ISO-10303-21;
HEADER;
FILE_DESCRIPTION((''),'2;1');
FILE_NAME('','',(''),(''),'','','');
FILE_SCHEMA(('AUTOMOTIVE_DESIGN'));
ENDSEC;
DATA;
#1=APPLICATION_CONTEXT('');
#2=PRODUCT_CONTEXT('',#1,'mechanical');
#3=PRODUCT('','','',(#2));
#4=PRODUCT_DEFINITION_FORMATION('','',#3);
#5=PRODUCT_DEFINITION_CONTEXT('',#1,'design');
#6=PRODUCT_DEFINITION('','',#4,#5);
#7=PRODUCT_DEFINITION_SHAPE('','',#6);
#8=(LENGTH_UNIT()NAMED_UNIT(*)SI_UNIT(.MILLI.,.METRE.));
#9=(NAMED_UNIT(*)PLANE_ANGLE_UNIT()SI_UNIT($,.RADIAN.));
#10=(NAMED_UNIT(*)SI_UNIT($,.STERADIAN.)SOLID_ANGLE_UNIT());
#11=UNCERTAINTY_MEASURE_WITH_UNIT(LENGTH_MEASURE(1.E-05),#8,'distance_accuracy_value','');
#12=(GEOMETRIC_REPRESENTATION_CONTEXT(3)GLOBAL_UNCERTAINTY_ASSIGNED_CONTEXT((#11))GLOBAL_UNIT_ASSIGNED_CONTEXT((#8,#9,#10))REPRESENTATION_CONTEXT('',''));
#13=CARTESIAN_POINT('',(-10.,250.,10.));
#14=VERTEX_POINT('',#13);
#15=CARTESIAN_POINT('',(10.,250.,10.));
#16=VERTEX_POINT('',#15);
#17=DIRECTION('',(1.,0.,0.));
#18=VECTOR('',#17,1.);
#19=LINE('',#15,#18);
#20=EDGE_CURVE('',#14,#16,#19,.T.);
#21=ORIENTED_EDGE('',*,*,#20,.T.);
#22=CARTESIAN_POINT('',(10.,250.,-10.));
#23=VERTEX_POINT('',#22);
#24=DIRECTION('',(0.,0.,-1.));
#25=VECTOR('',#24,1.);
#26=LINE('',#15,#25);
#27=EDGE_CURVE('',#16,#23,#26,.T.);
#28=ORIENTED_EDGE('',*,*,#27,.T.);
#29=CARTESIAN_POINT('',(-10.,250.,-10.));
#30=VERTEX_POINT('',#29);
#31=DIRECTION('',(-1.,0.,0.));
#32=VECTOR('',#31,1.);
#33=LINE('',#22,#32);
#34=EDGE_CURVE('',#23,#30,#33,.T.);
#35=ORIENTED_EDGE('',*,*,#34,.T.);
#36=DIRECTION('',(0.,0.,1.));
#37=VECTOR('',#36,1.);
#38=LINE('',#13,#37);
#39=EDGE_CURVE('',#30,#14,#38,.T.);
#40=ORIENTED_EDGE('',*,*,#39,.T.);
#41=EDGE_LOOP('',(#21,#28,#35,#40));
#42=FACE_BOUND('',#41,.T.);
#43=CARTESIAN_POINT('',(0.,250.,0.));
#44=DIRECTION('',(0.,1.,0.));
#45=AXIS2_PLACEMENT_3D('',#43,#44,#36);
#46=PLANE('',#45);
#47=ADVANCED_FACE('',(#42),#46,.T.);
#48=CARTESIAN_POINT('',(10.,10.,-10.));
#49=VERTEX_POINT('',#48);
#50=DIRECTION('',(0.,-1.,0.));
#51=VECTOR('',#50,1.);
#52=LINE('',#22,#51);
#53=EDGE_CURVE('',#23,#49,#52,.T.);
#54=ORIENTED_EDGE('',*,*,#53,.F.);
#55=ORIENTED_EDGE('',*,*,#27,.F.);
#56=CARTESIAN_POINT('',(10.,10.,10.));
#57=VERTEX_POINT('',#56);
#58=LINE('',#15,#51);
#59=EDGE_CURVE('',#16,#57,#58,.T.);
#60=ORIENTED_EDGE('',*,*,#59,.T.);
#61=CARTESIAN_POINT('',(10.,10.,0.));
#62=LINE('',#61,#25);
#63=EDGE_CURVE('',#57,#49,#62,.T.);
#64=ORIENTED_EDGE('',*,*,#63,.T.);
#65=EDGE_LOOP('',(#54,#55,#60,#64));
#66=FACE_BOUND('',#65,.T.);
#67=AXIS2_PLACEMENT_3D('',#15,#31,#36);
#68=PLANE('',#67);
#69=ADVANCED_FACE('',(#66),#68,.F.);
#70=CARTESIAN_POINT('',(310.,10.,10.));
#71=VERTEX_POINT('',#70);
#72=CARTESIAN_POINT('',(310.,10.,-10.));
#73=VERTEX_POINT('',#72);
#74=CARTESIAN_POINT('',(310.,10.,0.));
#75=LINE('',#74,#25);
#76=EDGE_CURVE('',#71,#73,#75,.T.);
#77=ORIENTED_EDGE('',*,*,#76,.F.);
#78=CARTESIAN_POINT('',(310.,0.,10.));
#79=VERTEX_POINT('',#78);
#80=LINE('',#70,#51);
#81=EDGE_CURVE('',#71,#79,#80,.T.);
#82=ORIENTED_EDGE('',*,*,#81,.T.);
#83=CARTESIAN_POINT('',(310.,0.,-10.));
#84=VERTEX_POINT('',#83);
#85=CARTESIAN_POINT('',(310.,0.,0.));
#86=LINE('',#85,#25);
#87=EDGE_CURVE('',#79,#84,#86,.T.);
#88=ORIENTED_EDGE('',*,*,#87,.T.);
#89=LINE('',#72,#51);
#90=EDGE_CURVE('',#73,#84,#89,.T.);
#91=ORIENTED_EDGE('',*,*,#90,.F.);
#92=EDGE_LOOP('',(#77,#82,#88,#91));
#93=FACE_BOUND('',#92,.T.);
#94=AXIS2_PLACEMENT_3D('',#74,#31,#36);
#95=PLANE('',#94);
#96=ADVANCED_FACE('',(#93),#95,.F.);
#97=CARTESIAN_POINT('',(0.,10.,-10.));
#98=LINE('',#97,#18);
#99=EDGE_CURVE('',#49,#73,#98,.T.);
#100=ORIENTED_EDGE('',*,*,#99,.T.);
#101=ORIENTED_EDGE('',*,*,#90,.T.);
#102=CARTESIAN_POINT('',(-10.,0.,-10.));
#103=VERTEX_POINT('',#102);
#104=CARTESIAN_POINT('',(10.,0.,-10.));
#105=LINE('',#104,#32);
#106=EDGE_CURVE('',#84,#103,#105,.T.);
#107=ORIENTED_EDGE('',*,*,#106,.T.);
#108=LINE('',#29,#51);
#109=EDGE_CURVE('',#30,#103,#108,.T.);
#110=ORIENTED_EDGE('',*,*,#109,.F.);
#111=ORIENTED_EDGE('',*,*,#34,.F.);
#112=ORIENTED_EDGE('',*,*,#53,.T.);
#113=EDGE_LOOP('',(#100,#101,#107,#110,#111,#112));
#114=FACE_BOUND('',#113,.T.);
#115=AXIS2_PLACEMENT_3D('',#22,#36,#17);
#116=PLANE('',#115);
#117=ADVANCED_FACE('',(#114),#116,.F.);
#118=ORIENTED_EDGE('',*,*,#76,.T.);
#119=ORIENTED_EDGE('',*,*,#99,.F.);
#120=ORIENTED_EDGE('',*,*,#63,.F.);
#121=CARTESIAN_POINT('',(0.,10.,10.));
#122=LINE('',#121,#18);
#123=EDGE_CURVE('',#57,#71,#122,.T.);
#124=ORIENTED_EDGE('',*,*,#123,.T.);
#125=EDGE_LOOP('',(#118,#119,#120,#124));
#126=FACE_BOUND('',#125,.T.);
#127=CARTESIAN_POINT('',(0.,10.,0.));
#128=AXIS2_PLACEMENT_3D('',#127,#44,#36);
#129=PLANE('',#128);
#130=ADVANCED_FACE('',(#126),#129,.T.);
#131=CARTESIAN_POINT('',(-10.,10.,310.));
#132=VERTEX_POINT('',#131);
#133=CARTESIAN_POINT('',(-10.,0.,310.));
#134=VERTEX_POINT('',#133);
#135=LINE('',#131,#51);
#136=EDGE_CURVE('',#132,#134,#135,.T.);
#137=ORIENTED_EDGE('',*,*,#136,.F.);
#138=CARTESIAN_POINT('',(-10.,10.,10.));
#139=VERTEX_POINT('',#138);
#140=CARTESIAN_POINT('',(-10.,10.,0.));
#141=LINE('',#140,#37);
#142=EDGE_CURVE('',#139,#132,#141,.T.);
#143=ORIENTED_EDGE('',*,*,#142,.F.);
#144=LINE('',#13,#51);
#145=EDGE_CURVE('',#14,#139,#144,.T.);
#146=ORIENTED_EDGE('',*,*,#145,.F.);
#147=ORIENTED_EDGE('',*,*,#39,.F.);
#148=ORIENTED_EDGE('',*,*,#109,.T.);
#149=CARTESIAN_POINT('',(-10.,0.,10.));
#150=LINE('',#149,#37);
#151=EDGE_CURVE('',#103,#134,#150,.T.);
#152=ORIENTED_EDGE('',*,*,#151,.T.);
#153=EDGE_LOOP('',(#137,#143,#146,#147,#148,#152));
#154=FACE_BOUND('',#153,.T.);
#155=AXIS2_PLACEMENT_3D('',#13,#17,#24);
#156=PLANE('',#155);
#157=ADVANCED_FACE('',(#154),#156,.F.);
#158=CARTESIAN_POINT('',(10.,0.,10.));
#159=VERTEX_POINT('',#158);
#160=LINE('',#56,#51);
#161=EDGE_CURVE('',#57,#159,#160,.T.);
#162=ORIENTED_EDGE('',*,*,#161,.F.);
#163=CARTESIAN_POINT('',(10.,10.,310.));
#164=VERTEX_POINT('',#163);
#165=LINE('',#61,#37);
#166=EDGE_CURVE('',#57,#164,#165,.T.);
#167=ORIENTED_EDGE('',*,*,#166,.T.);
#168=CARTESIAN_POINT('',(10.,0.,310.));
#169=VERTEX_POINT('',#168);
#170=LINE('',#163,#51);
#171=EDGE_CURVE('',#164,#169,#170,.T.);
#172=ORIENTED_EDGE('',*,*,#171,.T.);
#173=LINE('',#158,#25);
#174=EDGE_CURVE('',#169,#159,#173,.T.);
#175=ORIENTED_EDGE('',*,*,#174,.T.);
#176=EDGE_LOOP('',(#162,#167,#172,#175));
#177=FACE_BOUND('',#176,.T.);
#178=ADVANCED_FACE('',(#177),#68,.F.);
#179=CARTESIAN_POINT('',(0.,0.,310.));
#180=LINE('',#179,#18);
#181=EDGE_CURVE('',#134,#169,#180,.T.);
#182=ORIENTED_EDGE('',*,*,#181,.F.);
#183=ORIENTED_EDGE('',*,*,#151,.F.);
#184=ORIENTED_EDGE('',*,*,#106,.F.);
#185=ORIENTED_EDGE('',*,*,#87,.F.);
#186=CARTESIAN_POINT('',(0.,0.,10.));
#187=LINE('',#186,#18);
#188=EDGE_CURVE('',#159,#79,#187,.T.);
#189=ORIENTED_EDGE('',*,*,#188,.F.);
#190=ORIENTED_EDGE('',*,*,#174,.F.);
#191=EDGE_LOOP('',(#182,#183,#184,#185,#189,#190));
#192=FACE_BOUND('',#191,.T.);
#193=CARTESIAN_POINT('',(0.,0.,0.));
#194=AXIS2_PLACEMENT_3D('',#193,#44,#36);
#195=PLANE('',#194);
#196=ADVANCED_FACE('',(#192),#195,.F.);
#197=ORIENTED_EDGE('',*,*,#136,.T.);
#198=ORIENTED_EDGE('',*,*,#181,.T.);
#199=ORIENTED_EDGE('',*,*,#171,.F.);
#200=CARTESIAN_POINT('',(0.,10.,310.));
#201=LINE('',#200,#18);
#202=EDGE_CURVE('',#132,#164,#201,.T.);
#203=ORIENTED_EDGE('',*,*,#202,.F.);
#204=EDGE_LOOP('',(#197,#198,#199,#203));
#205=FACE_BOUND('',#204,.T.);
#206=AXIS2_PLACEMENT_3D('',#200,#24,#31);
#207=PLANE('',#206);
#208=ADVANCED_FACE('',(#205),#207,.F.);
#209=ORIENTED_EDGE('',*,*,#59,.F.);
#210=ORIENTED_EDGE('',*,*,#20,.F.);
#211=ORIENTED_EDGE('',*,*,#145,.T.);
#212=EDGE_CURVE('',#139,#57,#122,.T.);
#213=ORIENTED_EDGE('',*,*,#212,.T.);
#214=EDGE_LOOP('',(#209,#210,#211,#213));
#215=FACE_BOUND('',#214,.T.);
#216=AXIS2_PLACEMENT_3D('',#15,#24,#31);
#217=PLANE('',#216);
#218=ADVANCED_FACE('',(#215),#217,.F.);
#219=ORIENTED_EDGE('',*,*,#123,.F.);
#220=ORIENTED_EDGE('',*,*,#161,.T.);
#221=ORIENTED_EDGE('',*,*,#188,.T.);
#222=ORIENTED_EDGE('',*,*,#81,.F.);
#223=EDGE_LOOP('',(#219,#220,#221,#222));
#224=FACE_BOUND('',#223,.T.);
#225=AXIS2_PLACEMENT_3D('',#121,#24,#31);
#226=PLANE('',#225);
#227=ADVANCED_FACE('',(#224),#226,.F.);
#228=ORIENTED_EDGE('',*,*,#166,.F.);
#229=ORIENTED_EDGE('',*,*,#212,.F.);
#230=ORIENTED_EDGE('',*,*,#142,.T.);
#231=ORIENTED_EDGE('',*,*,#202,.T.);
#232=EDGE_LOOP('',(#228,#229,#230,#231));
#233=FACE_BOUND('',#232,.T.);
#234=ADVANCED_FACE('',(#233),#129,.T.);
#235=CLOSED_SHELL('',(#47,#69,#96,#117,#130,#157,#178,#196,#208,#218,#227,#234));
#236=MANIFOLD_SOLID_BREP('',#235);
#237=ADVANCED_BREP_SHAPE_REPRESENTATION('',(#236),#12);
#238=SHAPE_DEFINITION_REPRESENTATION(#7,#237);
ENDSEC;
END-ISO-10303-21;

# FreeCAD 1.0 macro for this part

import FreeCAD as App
import Part
import Sketcher
from FreeCAD import Vector

doc = App.newDocument("Part")
body = doc.addObject("PartDesign::Body", "Body")

# Sketch on XZ plane
sketch1 = doc.addObject("Sketcher::SketchObject", "Sketch")
body.addObject(sketch1)
sketch1.AttachmentSupport = (doc.XZ_Plane, [""])
sketch1.MapMode = "FlatFace"
sketch1.addGeometry([
    Part.LineSegment(Vector(-10, -10, 0), Vector(-10, 10, 0)),
    Part.LineSegment(Vector(-10, 10, 0), Vector(10, 10, 0)),
    Part.LineSegment(Vector(10, 10, 0), Vector(10, -10, 0)),
    Part.LineSegment(Vector(10, -10, 0), Vector(-10, -10, 0)),
], False)
sketch1.addConstraint([
    Sketcher.Constraint("Coincident", 0, 2, 1, 1),
    Sketcher.Constraint("Coincident", 1, 2, 2, 1),
    Sketcher.Constraint("Coincident", 2, 2, 3, 1),
    Sketcher.Constraint("Coincident", 3, 2, 0, 1),
    Sketcher.Constraint("Vertical", 0),
    Sketcher.Constraint("Horizontal", 1),
    Sketcher.Constraint("Vertical", 2),
    Sketcher.Constraint("Horizontal", 3),
    Sketcher.Constraint("Symmetric", 0, 2, 2, 2, -1, 1),
    Sketcher.Constraint("Equal", 3, 0),
    Sketcher.Constraint("DistanceX", 1, 1, 1, 2, 20.0),
])
pad1 = doc.addObject("PartDesign::Pad", "Pad")
body.addObject(pad1)
pad1.Profile = sketch1
pad1.Length = 250
pad1.Reversed = True

# Sketch on XZ plane
sketch2 = doc.addObject("Sketcher::SketchObject", "Sketch001")
body.addObject(sketch2)
sketch2.AttachmentSupport = (doc.XZ_Plane, [""])
sketch2.MapMode = "FlatFace"
sketch2.addGeometry([
    Part.LineSegment(Vector(-10, 10, 0), Vector(-10, 310, 0)),  # 0
    Part.LineSegment(Vector(-10, 310, 0), Vector(10, 310, 0)),  # 1
    Part.LineSegment(Vector(10, 310, 0), Vector(10, 10, 0)),  # 2
    Part.LineSegment(Vector(10, 10, 0), Vector(-10, 10, 0)),  # 3
    Part.LineSegment(Vector(10, -10, 0), Vector(10, 10, 0)),  # 4
    Part.LineSegment(Vector(10, 10, 0), Vector(310, 10, 0)),  # 5
    Part.LineSegment(Vector(310, 10, 0), Vector(310, -10, 0)),  # 6
    Part.LineSegment(Vector(310, -10, 0), Vector(10, -10, 0)),  # 7
], False)
sketch2.addConstraint([
    Sketcher.Constraint("Coincident", 0, 2, 1, 1),
    Sketcher.Constraint("Coincident", 1, 2, 2, 1),
    Sketcher.Constraint("Coincident", 2, 2, 3, 1),
    Sketcher.Constraint("Coincident", 3, 2, 0, 1),
    Sketcher.Constraint("Coincident", 4, 2, 5, 1),
    Sketcher.Constraint("Coincident", 5, 2, 6, 1),
    Sketcher.Constraint("Coincident", 6, 2, 7, 1),
    Sketcher.Constraint("Coincident", 7, 2, 4, 1),
    Sketcher.Constraint("Vertical", 0),
    Sketcher.Constraint("Horizontal", 1),
    Sketcher.Constraint("Vertical", 2),
    Sketcher.Constraint("Horizontal", 3),
    Sketcher.Constraint("Vertical", 4),
    Sketcher.Constraint("Horizontal", 5),
    Sketcher.Constraint("Vertical", 6),
    Sketcher.Constraint("Horizontal", 7),
    Sketcher.Constraint("Coincident", 4, 2, 2, 2),
    Sketcher.Constraint("Symmetric", 3, 2, 7, 2, -1, 1),
    Sketcher.Constraint("Equal", 7, 0),
    Sketcher.Constraint("Equal", 3, 4),
    Sketcher.Constraint("DistanceX", 1, 1, 1, 2, 20.0),
    Sketcher.Constraint("DistanceX", 5, 1, 5, 2, 300.0),
])
pad2 = doc.addObject("PartDesign::Pad", "Pad001")
body.addObject(pad2)
pad2.Profile = sketch2
pad2.Length = 10
pad2.Reversed = True

doc.recompute()
